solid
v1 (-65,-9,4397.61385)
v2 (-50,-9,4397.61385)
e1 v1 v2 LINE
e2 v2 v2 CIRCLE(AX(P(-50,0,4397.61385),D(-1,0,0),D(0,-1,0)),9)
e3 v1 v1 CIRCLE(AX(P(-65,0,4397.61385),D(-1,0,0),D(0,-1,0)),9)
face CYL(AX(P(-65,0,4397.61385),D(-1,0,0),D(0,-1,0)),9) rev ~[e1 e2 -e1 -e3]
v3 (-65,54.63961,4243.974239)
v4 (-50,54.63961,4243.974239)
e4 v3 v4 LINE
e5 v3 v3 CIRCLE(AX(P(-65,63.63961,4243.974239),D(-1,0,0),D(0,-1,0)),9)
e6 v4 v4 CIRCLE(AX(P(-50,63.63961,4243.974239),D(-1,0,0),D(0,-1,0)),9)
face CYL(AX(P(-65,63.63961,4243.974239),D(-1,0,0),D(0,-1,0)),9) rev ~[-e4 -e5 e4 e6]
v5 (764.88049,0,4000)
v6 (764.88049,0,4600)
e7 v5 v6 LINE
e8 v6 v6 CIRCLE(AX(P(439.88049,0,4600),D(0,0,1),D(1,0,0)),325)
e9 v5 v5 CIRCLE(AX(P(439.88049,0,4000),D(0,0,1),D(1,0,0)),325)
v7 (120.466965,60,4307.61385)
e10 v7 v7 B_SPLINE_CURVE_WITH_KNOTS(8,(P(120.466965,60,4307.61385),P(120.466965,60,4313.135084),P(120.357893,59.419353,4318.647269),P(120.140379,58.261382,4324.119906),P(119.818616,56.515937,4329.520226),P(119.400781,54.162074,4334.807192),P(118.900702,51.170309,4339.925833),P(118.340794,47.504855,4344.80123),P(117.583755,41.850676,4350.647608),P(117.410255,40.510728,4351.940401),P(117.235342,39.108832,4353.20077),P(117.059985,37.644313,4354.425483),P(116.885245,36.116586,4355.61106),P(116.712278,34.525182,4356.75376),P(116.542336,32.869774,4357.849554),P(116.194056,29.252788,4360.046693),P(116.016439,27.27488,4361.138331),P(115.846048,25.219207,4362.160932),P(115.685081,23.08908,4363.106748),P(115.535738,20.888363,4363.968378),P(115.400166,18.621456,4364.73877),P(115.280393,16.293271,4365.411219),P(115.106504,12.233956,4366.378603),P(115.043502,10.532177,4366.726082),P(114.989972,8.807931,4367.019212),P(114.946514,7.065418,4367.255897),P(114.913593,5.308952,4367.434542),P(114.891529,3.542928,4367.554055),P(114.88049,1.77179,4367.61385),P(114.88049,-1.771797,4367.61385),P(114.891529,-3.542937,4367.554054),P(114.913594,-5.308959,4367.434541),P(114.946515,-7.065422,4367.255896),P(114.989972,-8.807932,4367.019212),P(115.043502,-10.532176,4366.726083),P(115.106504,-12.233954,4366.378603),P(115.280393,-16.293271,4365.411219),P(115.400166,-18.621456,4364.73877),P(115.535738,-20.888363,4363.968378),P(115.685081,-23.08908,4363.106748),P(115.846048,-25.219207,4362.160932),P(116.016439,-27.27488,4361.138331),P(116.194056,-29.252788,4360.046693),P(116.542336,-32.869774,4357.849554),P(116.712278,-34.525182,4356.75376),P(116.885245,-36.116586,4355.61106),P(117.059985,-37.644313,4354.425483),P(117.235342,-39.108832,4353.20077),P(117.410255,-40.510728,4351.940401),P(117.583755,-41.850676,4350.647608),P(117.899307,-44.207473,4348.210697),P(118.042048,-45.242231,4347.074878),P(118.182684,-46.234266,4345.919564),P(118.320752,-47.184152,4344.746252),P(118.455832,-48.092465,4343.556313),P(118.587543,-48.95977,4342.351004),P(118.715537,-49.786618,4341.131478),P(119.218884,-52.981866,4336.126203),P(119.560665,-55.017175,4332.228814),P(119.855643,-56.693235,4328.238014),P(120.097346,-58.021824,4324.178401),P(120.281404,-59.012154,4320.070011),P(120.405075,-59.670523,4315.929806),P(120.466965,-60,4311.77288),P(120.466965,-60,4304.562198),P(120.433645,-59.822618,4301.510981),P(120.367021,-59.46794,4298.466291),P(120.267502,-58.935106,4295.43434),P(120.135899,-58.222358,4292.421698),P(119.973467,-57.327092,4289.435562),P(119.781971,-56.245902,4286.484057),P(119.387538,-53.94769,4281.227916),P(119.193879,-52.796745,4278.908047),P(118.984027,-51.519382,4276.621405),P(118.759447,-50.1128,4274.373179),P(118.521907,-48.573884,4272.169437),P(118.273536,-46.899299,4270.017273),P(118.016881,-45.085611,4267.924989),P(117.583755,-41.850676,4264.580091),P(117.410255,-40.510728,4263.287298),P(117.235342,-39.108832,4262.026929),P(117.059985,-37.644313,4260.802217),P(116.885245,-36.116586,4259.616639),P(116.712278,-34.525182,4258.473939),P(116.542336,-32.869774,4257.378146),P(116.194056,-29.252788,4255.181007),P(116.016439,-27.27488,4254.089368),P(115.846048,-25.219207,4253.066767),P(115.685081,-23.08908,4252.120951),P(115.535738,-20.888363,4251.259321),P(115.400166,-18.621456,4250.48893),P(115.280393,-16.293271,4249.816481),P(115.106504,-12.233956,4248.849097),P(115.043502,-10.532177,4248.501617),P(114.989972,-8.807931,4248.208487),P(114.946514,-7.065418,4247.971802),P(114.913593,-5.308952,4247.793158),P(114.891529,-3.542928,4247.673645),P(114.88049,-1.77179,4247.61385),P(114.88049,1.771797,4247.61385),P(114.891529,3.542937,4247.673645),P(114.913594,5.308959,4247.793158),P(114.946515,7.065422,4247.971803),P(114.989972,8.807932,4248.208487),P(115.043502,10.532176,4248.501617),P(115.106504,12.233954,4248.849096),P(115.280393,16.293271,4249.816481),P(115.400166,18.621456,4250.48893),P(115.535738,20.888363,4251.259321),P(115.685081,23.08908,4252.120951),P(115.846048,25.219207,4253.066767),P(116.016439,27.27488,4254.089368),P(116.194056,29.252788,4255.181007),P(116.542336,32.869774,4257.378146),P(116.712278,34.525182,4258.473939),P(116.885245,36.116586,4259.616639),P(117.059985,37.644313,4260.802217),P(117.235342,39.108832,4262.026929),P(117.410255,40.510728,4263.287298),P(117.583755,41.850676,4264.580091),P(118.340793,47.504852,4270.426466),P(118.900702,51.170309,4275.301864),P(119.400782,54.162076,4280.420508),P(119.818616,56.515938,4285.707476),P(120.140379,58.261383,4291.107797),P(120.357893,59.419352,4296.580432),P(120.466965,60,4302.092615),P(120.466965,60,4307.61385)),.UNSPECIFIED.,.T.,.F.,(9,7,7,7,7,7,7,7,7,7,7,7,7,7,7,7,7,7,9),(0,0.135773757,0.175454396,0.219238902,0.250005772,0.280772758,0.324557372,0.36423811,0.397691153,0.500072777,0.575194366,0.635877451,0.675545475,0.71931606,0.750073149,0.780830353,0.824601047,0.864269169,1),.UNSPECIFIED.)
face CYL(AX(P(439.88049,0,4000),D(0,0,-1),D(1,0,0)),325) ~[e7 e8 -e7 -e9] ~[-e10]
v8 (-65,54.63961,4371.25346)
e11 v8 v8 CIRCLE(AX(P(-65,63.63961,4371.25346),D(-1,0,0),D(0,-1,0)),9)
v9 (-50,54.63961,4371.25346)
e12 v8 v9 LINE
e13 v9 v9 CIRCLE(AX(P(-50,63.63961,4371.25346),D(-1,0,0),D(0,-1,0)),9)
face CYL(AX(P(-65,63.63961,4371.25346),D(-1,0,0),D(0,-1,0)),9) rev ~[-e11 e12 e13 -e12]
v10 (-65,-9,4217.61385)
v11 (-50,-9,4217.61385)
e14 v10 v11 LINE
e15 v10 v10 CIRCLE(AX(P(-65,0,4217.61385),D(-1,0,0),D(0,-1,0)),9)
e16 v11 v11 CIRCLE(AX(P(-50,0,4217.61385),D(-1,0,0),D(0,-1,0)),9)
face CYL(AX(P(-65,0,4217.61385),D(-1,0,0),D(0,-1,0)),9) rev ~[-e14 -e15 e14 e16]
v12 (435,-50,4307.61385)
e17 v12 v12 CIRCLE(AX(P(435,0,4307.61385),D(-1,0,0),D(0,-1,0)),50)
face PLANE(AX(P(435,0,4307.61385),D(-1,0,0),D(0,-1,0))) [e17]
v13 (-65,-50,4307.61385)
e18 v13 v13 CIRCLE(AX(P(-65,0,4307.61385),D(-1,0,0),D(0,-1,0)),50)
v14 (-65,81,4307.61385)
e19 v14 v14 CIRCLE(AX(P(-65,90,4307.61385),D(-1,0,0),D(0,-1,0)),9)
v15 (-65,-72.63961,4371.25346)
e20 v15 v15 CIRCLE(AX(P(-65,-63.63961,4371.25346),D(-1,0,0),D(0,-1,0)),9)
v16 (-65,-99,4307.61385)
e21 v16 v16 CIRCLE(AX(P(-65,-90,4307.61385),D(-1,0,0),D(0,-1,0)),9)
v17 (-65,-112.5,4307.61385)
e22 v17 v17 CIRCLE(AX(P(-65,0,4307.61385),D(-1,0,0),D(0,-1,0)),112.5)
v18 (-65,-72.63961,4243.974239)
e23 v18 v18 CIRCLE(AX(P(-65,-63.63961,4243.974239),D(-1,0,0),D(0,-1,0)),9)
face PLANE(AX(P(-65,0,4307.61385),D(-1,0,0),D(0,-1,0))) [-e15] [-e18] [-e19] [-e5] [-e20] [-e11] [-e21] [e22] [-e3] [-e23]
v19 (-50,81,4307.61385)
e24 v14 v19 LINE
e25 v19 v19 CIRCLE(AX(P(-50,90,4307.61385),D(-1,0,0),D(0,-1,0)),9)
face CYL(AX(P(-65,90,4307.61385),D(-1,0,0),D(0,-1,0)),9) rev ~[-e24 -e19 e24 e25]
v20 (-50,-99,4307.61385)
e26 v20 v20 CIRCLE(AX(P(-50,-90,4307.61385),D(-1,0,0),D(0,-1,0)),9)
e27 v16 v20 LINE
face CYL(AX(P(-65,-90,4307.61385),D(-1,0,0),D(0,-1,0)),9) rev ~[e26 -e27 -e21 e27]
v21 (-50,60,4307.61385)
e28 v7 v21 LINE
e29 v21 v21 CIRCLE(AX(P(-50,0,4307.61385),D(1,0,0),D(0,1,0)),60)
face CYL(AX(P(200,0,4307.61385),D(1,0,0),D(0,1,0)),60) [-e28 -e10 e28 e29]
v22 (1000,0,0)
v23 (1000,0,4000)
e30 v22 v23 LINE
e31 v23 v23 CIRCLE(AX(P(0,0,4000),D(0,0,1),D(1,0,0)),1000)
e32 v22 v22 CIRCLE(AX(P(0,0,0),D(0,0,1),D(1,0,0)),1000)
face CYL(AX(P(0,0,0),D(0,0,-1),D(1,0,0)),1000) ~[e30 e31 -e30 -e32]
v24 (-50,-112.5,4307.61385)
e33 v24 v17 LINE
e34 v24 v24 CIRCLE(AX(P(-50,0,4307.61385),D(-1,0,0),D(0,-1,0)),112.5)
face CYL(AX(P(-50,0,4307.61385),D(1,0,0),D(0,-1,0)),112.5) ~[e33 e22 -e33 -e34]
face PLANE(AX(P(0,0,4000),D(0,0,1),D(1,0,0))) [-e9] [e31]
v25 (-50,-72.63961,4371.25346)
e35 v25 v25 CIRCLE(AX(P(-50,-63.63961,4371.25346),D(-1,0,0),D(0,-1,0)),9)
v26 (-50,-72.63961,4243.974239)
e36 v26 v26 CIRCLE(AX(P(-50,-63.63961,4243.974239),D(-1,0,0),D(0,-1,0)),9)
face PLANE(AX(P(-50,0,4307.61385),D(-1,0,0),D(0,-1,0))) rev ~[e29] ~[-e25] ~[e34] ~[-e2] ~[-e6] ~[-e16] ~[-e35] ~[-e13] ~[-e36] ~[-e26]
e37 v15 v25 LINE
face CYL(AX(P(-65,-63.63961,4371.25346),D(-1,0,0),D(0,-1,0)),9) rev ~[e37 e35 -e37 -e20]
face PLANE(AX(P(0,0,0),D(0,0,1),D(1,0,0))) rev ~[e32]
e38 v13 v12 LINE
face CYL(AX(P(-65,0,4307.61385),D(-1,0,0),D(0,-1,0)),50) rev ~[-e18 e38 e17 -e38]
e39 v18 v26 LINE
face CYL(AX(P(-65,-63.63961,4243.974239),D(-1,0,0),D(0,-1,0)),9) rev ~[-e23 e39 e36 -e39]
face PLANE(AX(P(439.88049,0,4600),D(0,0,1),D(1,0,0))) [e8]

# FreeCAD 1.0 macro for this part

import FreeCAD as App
import Part
import Sketcher
from FreeCAD import Vector

doc = App.newDocument("Part")
body = doc.addObject("PartDesign::Body", "Body")

# Sketch on XY plane
sketch1 = doc.addObject("Sketcher::SketchObject", "Sketch")
body.addObject(sketch1)
sketch1.AttachmentSupport = (doc.XY_Plane, [""])
sketch1.MapMode = "FlatFace"
sketch1.addGeometry(Part.Circle(Vector(0, 0, 0), Vector(0, 0, 1), 1000), False)
sketch1.addConstraint([
    Sketcher.Constraint("Coincident", 0, 3, -1, 1),
    Sketcher.Constraint("Diameter", 0, 2000.0),
])
pad1 = doc.addObject("PartDesign::Pad", "Pad")
body.addObject(pad1)
pad1.Profile = sketch1
pad1.Length = 4000

# Sketch on XY plane
sketch2 = doc.addObject("Sketcher::SketchObject", "Sketch001")
body.addObject(sketch2)
sketch2.AttachmentSupport = (doc.XY_Plane, [""])
sketch2.MapMode = "FlatFace"
sketch2.AttachmentOffset = App.Placement(Vector(0, 0, 4000), App.Rotation())
sketch2.addGeometry(Part.Circle(Vector(440, 0, 0), Vector(0, 0, 1), 325), False)
sketch2.addConstraint([
    Sketcher.Constraint("PointOnObject", 0, 3, -1),
    Sketcher.Constraint("Diameter", 0, 650.0),
    Sketcher.Constraint("DistanceX", -1, 1, 0, 3, 439.88049),
])
pad2 = doc.addObject("PartDesign::Pad", "Pad001")
body.addObject(pad2)
pad2.Profile = sketch2
pad2.Length = 600

# Sketch on YZ plane
sketch3 = doc.addObject("Sketcher::SketchObject", "Sketch002")
body.addObject(sketch3)
sketch3.AttachmentSupport = (doc.YZ_Plane, [""])
sketch3.MapMode = "FlatFace"
sketch3.AttachmentOffset = App.Placement(Vector(0, 0, 200), App.Rotation())
sketch3.addGeometry(Part.Circle(Vector(0, 4308, 0), Vector(0, 0, 1), 60), False)
sketch3.addConstraint([
    Sketcher.Constraint("PointOnObject", 0, 3, -2),
    Sketcher.Constraint("Diameter", 0, 120.0),
    Sketcher.Constraint("DistanceY", -1, 1, 0, 3, 4307.61385),
])
pad3 = doc.addObject("PartDesign::Pad", "Pad002")
body.addObject(pad3)
pad3.Profile = sketch3
pad3.Length = 250
pad3.Reversed = True

# Sketch on YZ plane
sketch4 = doc.addObject("Sketcher::SketchObject", "Sketch003")
body.addObject(sketch4)
sketch4.AttachmentSupport = (doc.YZ_Plane, [""])
sketch4.MapMode = "FlatFace"
sketch4.AttachmentOffset = App.Placement(Vector(0, 0, -50), App.Rotation())
sketch4.addGeometry(Part.Circle(Vector(0, 4308, 0), Vector(0, 0, 1), 112), False)
sketch4.addConstraint([
    Sketcher.Constraint("PointOnObject", 0, 3, -2),
    Sketcher.Constraint("Diameter", 0, 225.0),
    Sketcher.Constraint("DistanceY", -1, 1, 0, 3, 4307.61385),
])
pad4 = doc.addObject("PartDesign::Pad", "Pad003")
body.addObject(pad4)
pad4.Profile = sketch4
pad4.Length = 15
pad4.Reversed = True

# Sketch on YZ plane
sketch5 = doc.addObject("Sketcher::SketchObject", "Sketch004")
body.addObject(sketch5)
sketch5.AttachmentSupport = (doc.YZ_Plane, [""])
sketch5.MapMode = "FlatFace"
sketch5.AttachmentOffset = App.Placement(Vector(0, 0, -65), App.Rotation())
sketch5.addGeometry(Part.Circle(Vector(0, 4308, 0), Vector(0, 0, 1), 50), False)
sketch5.addConstraint([
    Sketcher.Constraint("PointOnObject", 0, 3, -2),
    Sketcher.Constraint("Diameter", 0, 100.0),
    Sketcher.Constraint("DistanceY", -1, 1, 0, 3, 4307.61385),
])
pocket1 = doc.addObject("PartDesign::Pocket", "Pocket")
body.addObject(pocket1)
pocket1.Profile = sketch5
pocket1.Length = 500
pocket1.Reversed = True

# Sketch on YZ plane
sketch6 = doc.addObject("Sketcher::SketchObject", "Sketch005")
body.addObject(sketch6)
sketch6.AttachmentSupport = (doc.YZ_Plane, [""])
sketch6.MapMode = "FlatFace"
sketch6.AttachmentOffset = App.Placement(Vector(0, 0, -65), App.Rotation())
sketch6.addGeometry([
    Part.Circle(Vector(0, 4398, 0), Vector(0, 0, 1), 9),  # 0
    Part.Circle(Vector(64, 4371, 0), Vector(0, 0, 1), 9),  # 1
    Part.Circle(Vector(90, 4308, 0), Vector(0, 0, 1), 9),  # 2
    Part.Circle(Vector(64, 4244, 0), Vector(0, 0, 1), 9),  # 3
    Part.Circle(Vector(0, 4218, 0), Vector(0, 0, 1), 9),  # 4
    Part.Circle(Vector(-64, 4244, 0), Vector(0, 0, 1), 9),  # 5
    Part.Circle(Vector(-90, 4308, 0), Vector(0, 0, 1), 9),  # 6
    Part.Circle(Vector(-64, 4371, 0), Vector(0, 0, 1), 9),  # 7
], False)
sketch6.addConstraint([
    Sketcher.Constraint("Equal", 0, 1),
    Sketcher.Constraint("Equal", 1, 2),
    Sketcher.Constraint("Equal", 2, 3),
    Sketcher.Constraint("Equal", 3, 4),
    Sketcher.Constraint("Equal", 4, 5),
    Sketcher.Constraint("Equal", 5, 6),
    Sketcher.Constraint("Equal", 6, 7),
    Sketcher.Constraint("Symmetric", 3, 3, 5, 3, -2),
    Sketcher.Constraint("Symmetric", 2, 3, 6, 3, -2),
    Sketcher.Constraint("Symmetric", 1, 3, 7, 3, -2),
    Sketcher.Constraint("PointOnObject", 0, 3, -2),
    Sketcher.Constraint("PointOnObject", 4, 3, -2),
    Sketcher.Constraint("Vertical", 1, 3, 3, 3),
    Sketcher.Constraint("Diameter", 0, 18.0),
    Sketcher.Constraint("DistanceX", -1, 1, 2, 3, 90.0),
    Sketcher.Constraint("DistanceY", 2, 3, 0, 3, 90.0),
    Sketcher.Constraint("DistanceY", 4, 3, 2, 3, 90.0),
    Sketcher.Constraint("DistanceY", -1, 1, 0, 3, 4397.61385),
    Sketcher.Constraint("DistanceX", -1, 1, 1, 3, 63.63961),
    Sketcher.Constraint("DistanceY", -1, 1, 1, 3, 4371.25346),
    Sketcher.Constraint("DistanceY", -1, 1, 3, 3, 4243.974239),
])
pocket2 = doc.addObject("PartDesign::Pocket", "Pocket001")
body.addObject(pocket2)
pocket2.Profile = sketch6
pocket2.Length = 25
pocket2.Reversed = True

doc.recompute()
